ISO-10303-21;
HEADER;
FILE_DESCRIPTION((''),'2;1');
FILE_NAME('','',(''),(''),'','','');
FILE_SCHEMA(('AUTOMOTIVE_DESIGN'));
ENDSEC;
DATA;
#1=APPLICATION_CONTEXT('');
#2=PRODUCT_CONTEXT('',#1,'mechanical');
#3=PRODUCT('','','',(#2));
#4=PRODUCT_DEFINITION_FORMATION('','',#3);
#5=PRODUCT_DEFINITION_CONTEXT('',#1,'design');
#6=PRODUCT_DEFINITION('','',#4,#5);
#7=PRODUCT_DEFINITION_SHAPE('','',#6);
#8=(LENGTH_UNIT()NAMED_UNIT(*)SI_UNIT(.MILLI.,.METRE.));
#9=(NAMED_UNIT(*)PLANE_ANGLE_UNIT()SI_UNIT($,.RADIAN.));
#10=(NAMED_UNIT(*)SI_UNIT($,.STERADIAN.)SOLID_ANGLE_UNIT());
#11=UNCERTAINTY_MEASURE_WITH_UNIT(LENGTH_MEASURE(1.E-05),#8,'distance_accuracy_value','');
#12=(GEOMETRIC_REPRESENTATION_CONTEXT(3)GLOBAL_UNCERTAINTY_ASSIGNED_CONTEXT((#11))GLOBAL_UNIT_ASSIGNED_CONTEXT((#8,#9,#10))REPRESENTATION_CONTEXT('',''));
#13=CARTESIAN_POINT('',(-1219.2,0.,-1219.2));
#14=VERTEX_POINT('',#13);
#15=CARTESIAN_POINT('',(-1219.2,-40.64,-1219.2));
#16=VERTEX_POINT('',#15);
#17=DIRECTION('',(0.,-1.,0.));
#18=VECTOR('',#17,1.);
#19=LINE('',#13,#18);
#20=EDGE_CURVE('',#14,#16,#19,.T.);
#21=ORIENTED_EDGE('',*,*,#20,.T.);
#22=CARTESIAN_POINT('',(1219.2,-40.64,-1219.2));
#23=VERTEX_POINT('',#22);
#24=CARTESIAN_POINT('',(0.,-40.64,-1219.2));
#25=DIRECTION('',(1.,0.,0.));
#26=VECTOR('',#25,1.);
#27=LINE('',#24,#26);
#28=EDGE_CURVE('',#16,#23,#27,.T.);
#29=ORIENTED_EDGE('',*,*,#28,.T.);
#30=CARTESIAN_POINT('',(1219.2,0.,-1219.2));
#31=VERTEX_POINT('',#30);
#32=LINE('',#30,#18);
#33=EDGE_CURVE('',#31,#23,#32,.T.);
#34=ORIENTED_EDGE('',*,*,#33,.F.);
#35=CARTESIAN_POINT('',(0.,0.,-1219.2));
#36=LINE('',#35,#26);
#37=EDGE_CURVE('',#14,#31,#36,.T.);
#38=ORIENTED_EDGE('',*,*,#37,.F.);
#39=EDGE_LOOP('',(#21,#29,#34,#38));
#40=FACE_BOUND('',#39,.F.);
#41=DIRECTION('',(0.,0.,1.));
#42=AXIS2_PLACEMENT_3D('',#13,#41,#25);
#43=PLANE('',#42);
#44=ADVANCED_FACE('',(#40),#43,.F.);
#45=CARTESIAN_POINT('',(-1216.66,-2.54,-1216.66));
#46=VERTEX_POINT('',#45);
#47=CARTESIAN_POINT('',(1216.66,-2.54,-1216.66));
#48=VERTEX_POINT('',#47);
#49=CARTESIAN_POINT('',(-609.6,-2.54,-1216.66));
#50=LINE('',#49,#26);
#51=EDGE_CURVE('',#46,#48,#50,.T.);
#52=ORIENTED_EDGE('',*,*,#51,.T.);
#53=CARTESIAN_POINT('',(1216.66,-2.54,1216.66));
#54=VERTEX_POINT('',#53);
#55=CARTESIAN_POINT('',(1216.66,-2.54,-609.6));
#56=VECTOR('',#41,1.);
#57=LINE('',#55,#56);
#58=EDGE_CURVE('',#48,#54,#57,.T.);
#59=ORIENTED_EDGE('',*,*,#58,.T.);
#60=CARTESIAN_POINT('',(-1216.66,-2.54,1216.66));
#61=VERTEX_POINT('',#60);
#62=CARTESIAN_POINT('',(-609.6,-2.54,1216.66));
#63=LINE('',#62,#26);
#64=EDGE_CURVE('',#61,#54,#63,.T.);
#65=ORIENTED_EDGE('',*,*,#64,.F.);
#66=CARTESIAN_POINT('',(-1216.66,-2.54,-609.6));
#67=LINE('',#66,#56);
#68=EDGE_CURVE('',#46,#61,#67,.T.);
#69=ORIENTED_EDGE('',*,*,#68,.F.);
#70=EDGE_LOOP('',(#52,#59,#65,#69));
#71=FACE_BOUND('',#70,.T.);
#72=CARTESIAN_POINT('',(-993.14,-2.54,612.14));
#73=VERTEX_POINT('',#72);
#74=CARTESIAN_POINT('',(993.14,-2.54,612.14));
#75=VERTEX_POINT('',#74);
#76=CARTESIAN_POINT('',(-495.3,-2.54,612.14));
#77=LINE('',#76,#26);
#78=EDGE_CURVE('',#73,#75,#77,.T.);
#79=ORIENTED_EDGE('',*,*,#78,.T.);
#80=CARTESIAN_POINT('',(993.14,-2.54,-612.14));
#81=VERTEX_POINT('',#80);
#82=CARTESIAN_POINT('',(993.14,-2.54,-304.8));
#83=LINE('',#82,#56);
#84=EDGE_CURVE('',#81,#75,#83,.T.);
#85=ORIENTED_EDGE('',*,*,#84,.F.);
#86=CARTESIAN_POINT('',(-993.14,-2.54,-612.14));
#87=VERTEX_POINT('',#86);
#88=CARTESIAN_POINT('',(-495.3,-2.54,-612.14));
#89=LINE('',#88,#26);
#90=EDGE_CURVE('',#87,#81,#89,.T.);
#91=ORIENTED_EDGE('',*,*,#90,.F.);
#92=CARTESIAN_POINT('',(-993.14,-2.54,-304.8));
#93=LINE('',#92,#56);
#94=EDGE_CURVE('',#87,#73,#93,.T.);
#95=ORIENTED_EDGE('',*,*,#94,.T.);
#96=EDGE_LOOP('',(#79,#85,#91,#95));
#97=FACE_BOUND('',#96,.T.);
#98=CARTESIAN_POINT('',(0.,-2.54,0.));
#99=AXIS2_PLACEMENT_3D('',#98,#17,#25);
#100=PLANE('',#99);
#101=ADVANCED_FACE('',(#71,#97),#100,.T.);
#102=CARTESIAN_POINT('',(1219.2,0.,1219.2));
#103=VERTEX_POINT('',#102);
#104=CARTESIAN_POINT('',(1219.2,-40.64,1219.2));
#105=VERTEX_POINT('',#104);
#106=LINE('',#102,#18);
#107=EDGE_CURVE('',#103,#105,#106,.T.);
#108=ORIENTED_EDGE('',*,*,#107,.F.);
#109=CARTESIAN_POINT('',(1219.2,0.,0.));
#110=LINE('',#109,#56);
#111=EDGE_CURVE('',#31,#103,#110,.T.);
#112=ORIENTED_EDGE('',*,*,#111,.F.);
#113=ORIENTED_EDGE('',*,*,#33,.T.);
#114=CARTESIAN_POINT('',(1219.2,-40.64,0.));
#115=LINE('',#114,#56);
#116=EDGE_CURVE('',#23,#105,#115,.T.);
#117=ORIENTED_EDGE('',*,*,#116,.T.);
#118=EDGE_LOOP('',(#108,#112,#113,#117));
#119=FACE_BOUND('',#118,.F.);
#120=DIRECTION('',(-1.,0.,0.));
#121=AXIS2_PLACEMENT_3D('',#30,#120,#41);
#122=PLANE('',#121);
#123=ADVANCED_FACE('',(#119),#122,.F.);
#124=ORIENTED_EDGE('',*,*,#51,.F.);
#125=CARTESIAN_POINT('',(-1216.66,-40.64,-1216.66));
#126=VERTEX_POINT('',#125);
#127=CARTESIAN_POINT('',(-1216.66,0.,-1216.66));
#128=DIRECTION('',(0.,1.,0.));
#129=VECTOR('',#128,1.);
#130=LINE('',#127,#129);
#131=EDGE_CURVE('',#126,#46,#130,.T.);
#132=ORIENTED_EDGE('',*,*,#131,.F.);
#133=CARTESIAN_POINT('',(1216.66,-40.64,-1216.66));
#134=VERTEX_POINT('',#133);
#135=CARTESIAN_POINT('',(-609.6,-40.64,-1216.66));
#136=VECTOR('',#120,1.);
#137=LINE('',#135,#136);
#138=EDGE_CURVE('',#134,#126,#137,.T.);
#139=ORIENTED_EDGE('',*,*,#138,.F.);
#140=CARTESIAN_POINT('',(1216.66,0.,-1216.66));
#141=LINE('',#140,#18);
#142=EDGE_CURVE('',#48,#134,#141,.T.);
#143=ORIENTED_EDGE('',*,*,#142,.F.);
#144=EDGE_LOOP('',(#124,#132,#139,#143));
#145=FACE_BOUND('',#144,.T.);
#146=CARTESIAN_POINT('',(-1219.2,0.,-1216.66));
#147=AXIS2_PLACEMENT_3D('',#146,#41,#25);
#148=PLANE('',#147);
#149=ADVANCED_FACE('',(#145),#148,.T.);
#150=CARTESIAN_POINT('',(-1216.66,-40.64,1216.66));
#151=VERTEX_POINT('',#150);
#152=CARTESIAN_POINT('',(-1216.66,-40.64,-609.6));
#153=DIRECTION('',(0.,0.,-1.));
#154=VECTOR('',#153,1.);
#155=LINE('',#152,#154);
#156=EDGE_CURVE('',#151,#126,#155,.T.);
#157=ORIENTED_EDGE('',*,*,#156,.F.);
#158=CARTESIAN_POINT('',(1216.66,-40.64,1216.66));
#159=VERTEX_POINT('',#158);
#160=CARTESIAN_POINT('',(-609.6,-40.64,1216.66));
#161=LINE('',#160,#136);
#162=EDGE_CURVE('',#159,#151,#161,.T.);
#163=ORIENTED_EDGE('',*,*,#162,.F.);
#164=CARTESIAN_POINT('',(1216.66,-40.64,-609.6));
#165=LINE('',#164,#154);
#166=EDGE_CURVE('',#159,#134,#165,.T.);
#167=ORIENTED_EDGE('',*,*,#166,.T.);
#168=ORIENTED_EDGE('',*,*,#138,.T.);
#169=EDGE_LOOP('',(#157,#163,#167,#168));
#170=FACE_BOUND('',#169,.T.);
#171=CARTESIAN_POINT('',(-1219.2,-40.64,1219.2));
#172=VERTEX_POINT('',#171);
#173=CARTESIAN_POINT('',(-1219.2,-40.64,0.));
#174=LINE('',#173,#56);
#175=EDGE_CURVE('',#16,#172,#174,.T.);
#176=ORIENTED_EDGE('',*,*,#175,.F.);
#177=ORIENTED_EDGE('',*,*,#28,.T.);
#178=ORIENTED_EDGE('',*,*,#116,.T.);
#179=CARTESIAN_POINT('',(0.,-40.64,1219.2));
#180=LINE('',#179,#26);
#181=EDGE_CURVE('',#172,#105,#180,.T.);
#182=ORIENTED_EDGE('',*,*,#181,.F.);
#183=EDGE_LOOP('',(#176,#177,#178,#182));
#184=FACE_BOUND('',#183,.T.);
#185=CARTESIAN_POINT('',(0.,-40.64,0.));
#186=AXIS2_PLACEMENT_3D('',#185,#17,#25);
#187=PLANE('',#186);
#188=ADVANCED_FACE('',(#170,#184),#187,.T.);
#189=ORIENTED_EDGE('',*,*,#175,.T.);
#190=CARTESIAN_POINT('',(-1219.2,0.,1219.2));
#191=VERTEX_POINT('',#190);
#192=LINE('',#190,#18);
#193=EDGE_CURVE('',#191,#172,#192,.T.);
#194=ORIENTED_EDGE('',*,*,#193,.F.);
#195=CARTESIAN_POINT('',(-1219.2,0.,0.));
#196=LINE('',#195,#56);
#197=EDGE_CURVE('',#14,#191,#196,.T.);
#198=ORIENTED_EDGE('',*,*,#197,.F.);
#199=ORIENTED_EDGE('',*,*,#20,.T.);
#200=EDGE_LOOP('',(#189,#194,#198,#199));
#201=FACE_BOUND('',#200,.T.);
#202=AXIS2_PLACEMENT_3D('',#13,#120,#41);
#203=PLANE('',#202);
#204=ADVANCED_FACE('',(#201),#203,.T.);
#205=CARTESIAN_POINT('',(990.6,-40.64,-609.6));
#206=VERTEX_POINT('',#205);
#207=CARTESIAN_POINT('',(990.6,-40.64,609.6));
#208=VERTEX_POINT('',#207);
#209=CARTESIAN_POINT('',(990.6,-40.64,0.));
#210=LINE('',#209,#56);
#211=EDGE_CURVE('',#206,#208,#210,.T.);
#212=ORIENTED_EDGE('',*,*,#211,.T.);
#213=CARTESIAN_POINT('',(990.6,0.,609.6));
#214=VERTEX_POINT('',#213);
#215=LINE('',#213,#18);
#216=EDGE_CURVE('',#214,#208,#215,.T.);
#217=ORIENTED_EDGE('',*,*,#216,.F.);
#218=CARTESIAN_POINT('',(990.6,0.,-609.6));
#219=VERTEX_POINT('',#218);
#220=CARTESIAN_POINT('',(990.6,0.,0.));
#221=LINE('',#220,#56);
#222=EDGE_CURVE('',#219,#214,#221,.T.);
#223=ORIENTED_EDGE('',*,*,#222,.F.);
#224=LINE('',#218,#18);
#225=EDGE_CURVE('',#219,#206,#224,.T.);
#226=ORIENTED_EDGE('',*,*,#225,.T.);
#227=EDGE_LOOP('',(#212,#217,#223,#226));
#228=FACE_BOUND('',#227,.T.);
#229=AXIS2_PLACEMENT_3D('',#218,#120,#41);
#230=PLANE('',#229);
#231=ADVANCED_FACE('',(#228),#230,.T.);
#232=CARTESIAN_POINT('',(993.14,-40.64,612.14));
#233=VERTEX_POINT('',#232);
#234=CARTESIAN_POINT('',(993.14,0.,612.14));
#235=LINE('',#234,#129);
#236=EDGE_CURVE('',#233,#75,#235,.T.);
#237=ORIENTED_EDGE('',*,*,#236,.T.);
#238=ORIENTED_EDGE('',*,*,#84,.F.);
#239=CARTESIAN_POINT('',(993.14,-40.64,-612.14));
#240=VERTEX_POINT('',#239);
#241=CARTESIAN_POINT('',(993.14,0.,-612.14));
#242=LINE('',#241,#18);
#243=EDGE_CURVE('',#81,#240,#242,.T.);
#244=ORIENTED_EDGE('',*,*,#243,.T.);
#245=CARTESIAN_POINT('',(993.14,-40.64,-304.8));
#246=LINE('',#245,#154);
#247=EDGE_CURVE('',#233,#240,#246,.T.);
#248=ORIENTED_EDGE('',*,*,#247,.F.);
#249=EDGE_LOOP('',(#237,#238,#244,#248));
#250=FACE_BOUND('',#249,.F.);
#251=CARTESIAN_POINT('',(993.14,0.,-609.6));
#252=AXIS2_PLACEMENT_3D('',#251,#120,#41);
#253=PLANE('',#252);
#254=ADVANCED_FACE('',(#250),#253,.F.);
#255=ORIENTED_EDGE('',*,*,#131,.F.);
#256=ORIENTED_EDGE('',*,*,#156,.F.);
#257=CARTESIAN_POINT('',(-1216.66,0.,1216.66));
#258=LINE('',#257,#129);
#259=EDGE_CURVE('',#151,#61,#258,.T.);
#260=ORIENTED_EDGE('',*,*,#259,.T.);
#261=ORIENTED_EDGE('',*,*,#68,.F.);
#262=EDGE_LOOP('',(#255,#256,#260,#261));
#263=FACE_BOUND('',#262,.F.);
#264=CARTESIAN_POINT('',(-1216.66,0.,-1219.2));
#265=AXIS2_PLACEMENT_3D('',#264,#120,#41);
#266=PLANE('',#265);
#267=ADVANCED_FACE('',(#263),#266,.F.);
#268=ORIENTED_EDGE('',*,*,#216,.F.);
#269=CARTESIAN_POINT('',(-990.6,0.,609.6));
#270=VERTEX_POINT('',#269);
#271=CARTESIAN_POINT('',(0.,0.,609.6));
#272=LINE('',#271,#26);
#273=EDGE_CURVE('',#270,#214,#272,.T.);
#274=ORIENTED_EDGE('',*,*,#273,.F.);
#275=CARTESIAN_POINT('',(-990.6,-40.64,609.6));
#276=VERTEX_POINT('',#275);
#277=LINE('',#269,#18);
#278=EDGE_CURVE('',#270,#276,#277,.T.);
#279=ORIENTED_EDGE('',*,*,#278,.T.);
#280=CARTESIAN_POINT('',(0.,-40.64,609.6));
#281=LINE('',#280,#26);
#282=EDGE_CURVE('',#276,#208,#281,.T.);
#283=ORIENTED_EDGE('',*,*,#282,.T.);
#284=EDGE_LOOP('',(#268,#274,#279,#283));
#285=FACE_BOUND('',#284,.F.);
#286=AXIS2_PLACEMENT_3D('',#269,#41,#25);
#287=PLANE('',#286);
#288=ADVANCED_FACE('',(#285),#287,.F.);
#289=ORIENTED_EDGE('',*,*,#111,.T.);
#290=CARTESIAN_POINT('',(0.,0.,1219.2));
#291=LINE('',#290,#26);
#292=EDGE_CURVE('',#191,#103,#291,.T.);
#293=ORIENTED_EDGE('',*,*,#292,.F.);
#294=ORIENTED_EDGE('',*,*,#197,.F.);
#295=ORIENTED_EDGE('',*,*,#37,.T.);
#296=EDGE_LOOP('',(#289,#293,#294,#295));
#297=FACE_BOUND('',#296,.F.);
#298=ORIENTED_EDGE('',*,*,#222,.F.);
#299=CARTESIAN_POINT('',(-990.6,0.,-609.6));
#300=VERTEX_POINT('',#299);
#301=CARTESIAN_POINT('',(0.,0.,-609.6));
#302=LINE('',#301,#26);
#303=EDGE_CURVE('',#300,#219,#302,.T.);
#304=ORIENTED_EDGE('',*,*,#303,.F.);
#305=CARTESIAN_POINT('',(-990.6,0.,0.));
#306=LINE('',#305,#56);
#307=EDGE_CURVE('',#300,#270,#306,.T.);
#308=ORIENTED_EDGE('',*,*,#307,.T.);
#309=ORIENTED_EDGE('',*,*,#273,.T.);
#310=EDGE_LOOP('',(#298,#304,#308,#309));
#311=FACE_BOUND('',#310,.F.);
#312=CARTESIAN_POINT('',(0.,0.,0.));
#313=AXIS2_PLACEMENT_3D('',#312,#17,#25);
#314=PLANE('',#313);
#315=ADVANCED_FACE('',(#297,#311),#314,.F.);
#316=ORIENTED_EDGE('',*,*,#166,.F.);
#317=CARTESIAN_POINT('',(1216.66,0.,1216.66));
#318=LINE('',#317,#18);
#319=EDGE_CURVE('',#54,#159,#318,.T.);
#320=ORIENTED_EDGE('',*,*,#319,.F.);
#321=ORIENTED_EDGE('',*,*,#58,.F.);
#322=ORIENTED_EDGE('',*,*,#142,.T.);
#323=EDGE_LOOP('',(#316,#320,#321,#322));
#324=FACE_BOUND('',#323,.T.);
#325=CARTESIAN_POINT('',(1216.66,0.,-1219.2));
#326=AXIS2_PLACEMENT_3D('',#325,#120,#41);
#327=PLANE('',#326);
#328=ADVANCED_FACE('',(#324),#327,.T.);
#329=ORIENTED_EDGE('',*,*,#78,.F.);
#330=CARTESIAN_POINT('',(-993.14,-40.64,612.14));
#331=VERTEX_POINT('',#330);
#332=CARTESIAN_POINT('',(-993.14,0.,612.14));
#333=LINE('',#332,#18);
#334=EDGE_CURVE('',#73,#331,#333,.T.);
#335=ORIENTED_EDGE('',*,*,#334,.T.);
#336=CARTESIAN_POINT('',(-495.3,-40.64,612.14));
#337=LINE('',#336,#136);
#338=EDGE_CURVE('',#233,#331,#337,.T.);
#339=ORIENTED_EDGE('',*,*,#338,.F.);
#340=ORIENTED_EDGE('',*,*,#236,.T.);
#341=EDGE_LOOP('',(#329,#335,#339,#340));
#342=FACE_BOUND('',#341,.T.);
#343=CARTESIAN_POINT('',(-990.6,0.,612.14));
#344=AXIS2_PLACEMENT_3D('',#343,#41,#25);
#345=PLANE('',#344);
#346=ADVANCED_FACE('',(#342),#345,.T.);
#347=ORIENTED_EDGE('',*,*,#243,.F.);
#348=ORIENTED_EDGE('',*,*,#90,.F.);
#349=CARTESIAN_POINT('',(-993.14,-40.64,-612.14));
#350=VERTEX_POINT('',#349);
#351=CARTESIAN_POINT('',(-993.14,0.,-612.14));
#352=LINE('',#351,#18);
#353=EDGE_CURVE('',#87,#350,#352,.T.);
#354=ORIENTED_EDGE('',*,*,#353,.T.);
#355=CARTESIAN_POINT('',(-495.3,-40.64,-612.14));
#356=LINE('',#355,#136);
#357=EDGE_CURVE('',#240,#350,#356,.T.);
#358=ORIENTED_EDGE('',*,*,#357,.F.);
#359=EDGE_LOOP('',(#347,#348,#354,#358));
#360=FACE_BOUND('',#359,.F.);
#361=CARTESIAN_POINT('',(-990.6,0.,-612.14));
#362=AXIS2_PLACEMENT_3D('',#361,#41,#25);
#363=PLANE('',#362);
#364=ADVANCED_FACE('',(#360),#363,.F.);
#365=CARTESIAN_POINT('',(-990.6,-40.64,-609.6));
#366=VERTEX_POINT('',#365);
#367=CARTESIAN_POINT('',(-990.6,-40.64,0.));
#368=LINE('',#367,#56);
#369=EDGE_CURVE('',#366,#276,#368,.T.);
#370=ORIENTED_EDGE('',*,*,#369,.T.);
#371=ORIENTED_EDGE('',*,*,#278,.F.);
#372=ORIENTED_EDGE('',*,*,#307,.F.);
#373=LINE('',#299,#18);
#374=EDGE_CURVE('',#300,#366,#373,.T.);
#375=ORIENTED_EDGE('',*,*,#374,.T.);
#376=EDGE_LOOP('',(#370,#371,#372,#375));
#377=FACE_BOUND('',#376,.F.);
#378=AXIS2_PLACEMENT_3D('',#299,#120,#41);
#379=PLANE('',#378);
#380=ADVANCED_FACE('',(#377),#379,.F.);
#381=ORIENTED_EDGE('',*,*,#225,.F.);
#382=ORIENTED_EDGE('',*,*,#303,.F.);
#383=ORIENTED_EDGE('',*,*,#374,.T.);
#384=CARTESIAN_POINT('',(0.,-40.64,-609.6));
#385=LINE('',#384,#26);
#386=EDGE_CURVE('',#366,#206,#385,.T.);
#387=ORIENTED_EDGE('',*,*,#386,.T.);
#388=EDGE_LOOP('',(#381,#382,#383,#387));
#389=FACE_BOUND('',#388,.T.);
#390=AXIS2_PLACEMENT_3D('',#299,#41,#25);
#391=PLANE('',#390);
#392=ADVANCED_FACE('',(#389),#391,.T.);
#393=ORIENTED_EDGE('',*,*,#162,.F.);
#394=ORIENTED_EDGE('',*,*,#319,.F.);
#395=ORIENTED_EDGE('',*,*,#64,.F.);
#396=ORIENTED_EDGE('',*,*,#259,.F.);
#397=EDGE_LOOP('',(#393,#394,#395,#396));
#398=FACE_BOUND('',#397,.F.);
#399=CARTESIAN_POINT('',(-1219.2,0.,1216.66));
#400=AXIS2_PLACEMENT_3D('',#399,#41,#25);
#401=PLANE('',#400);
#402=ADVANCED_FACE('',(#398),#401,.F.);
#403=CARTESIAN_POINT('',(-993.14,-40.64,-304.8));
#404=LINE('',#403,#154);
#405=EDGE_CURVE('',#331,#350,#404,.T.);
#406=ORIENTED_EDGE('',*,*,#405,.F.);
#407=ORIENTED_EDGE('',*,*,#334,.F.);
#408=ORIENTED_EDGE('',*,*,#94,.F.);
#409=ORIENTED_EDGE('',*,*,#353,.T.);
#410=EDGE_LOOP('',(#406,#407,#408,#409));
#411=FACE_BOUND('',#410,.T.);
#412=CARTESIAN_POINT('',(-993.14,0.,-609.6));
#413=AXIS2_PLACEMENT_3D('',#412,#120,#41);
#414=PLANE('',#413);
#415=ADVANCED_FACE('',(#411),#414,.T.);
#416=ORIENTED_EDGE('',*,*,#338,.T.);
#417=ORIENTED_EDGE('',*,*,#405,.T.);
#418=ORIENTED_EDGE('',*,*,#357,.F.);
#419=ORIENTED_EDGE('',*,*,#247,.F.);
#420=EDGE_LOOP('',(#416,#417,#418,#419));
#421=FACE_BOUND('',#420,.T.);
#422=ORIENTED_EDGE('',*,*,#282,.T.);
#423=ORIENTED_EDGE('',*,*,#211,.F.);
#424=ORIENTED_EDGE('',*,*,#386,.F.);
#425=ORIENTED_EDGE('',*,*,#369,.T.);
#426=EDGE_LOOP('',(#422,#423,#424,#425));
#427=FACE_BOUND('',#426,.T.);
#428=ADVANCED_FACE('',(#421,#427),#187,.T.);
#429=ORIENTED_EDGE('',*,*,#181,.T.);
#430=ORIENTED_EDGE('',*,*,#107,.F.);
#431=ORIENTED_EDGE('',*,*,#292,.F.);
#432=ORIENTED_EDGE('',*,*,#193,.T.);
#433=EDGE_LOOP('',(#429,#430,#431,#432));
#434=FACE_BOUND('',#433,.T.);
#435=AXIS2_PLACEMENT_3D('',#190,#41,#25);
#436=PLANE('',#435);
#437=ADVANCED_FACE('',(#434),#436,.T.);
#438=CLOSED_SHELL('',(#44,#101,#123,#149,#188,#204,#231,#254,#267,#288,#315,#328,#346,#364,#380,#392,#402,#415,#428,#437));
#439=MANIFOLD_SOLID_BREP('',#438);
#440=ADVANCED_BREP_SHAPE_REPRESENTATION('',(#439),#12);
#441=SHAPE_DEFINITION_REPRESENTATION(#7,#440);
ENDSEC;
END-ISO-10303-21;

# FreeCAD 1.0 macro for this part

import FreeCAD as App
import Part
import Sketcher
Q = App.Units.Quantity


def faces_at(feature, points):
    """Names of the faces that lie closest to the given points."""
    faces = feature.Shape.Faces
    near = lambda p: min(range(len(faces)), key=lambda i: faces[i].distToShape(Part.Vertex(*p))[0])
    return sorted({f"Face{near(p) + 1}" for p in points})

doc = App.newDocument("Part")
params = doc.addObject("Spreadsheet::Sheet", "Params")
for row, (alias, value) in enumerate([
    ("sketch1_width", "96 in"),
    ("sketch1_width2", "78 in"),
    ("sketch1_height", "48 in"),
    ("pad1_length", "1.6 in"),
    ("thickness_wall", "0.1 in"),
], start=1):
    params.set(f"A{row}", alias)
    params.set(f"B{row}", "=" + value)
    params.setAlias(f"B{row}", alias)

body = doc.addObject("PartDesign::Body", "Body")

# Sketch on XZ plane
sketch1 = body.newObject("Sketcher::SketchObject", "Sketch")
sketch1.AttachmentSupport = (doc.getObject("XZ_Plane"), [""])
sketch1.MapMode = "FlatFace"
sketch1.addGeometry([
    Part.LineSegment(App.Vector(-1219.2, 1219.2, 0), App.Vector(-1219.2, -1219.2, 0)),  # 0
    Part.LineSegment(App.Vector(-1219.2, -1219.2, 0), App.Vector(1219.2, -1219.2, 0)),  # 1
    Part.LineSegment(App.Vector(1219.2, -1219.2, 0), App.Vector(1219.2, 1219.2, 0)),  # 2
    Part.LineSegment(App.Vector(1219.2, 1219.2, 0), App.Vector(-1219.2, 1219.2, 0)),  # 3
    Part.LineSegment(App.Vector(990.6, -609.6, 0), App.Vector(-990.6, -609.6, 0)),  # 4
    Part.LineSegment(App.Vector(-990.6, -609.6, 0), App.Vector(-990.6, 609.6, 0)),  # 5
    Part.LineSegment(App.Vector(-990.6, 609.6, 0), App.Vector(990.6, 609.6, 0)),  # 6
    Part.LineSegment(App.Vector(990.6, 609.6, 0), App.Vector(990.6, -609.6, 0)),  # 7
], False)
sketch1.addConstraint([
    Sketcher.Constraint("Coincident", 0, 2, 1, 1),
    Sketcher.Constraint("Coincident", 1, 2, 2, 1),
    Sketcher.Constraint("Coincident", 2, 2, 3, 1),
    Sketcher.Constraint("Coincident", 3, 2, 0, 1),
    Sketcher.Constraint("Coincident", 4, 2, 5, 1),
    Sketcher.Constraint("Coincident", 5, 2, 6, 1),
    Sketcher.Constraint("Coincident", 6, 2, 7, 1),
    Sketcher.Constraint("Coincident", 7, 2, 4, 1),
    Sketcher.Constraint("Vertical", 0),
    Sketcher.Constraint("Horizontal", 1),
    Sketcher.Constraint("Vertical", 2),
    Sketcher.Constraint("Horizontal", 3),
    Sketcher.Constraint("Horizontal", 4),
    Sketcher.Constraint("Vertical", 5),
    Sketcher.Constraint("Horizontal", 6),
    Sketcher.Constraint("Vertical", 7),
    Sketcher.Constraint("Symmetric", 0, 2, 2, 2, -1, 1),
    Sketcher.Constraint("Symmetric", 4, 2, 6, 2, -1, 1),
    Sketcher.Constraint("Equal", 3, 0),
    Sketcher.Constraint("DistanceX", 1, 1, 1, 2, Q("96 in")),
    Sketcher.Constraint("DistanceX", 4, 2, 4, 1, Q("78 in")),
    Sketcher.Constraint("DistanceY", 5, 1, 5, 2, Q("48 in")),
])
sketch1.setExpression("Constraints[19]", "Params.sketch1_width")
sketch1.setExpression("Constraints[20]", "Params.sketch1_width2")
sketch1.setExpression("Constraints[21]", "Params.sketch1_height")
pad1 = body.newObject("PartDesign::Pad", "Pad")
pad1.Profile = sketch1
pad1.setExpression("Length", "Params.pad1_length")
doc.recompute()

thickness = body.newObject("PartDesign::Thickness", "Thickness")
thickness.Base = (pad1, faces_at(pad1, [(0, -40.64, -975.36)]))
thickness.setExpression("Value", "Params.thickness_wall")
thickness.Reversed = True
thickness.Join = "Intersection"

doc.recompute()
